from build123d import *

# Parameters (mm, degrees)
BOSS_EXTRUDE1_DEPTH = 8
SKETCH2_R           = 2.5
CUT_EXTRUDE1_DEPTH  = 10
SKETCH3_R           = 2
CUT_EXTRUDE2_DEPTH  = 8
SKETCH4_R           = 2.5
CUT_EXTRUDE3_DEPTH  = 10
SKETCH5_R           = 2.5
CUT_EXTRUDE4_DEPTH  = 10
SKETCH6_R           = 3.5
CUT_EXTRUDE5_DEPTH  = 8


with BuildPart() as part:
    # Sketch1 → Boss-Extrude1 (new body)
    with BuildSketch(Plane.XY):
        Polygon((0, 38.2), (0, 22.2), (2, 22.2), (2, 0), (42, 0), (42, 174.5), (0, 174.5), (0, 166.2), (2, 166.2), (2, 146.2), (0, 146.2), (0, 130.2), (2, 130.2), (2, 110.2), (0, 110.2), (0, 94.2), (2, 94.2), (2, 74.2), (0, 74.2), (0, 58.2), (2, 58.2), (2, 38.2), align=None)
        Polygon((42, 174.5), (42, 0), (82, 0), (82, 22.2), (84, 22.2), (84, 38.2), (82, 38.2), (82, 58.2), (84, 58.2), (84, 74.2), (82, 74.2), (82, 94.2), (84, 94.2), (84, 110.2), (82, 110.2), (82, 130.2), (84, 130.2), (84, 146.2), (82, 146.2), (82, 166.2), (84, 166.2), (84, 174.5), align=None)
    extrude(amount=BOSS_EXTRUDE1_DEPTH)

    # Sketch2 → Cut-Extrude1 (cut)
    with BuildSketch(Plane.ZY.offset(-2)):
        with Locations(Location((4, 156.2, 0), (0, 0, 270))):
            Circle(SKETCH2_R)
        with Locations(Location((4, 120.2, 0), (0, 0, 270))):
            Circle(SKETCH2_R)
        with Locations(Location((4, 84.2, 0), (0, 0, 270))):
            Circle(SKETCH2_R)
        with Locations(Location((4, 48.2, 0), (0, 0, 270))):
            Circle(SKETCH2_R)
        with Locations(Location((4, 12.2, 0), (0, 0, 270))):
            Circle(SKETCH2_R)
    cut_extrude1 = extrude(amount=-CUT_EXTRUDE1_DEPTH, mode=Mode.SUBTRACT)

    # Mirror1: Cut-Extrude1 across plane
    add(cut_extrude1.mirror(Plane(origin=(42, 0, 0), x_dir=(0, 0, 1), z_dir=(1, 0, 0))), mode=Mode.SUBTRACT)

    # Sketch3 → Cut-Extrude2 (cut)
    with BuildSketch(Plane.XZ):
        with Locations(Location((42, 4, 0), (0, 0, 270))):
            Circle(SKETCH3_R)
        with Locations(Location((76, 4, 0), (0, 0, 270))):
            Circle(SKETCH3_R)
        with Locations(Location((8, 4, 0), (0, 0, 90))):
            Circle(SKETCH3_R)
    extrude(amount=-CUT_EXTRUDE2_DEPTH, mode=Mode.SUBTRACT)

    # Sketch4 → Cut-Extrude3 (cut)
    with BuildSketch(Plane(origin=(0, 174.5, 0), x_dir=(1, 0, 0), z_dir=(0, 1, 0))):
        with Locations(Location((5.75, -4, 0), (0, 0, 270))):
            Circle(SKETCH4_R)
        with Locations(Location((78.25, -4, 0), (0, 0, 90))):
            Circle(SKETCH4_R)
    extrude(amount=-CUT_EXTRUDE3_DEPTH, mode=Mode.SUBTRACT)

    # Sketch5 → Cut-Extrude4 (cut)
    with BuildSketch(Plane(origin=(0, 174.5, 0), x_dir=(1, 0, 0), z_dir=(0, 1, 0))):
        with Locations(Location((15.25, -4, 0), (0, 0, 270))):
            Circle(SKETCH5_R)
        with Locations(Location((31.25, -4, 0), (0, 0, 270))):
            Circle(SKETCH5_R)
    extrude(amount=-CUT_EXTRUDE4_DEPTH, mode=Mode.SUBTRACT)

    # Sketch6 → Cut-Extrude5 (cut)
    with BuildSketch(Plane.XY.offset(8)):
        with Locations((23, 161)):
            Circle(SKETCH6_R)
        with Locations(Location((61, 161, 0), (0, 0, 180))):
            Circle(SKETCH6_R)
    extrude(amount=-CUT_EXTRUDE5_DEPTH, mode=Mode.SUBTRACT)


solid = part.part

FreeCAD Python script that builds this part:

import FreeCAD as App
import Part
import Sketcher
from FreeCAD import Vector

doc = App.newDocument("Part")
params = doc.addObject("Spreadsheet::Sheet", "Params")
for row, (alias, value) in enumerate([
    ("sketch1_width", "2 mm"),
    ("sketch1_width2", "80 mm"),
    ("sketch1_height", "16 mm"),
    ("sketch1_height2", "20 mm"),
    ("sketch1_height3", "22.2 mm"),
    ("pad1_length", "8 mm"),
    ("sketch2_diameter", "5 mm"),
    ("pocket1_length", "10 mm"),
    ("sketch3_diameter", "4 mm"),
    ("pocket2_length", "8 mm"),
    ("sketch4_diameter", "5 mm"),
    ("pocket3_length", "10 mm"),
    ("sketch5_diameter", "5 mm"),
    ("pocket4_length", "10 mm"),
    ("sketch6_diameter", "7 mm"),
    ("pocket5_length", "8 mm"),
], start=1):
    params.set(f"A{row}", alias)
    params.set(f"B{row}", "=" + value)
    params.setAlias(f"B{row}", alias)

body = doc.addObject("PartDesign::Body", "Body")

# Sketch on XY plane
sketch1 = doc.addObject("Sketcher::SketchObject", "Sketch")
body.addObject(sketch1)
sketch1.AttachmentSupport = (doc.XY_Plane, [""])
sketch1.MapMode = "FlatFace"
sketch1.addGeometry(Part.LineSegment(Vector(0, 38.2, 0), Vector(0, 22.2, 0)), False)
sketch1.addGeometry(Part.LineSegment(Vector(0, 22.2, 0), Vector(2, 22.2, 0)), False)
sketch1.addGeometry(Part.LineSegment(Vector(2, 22.2, 0), Vector(2, 0, 0)), False)
sketch1.addGeometry(Part.LineSegment(Vector(2, 0, 0), Vector(82, 0, 0)), False)
sketch1.addGeometry(Part.LineSegment(Vector(82, 0, 0), Vector(82, 22.2, 0)), False)
sketch1.addGeometry(Part.LineSegment(Vector(82, 22.2, 0), Vector(84, 22.2, 0)), False)
sketch1.addGeometry(Part.LineSegment(Vector(84, 22.2, 0), Vector(84, 38.2, 0)), False)
sketch1.addGeometry(Part.LineSegment(Vector(84, 38.2, 0), Vector(82, 38.2, 0)), False)
sketch1.addGeometry(Part.LineSegment(Vector(82, 38.2, 0), Vector(82, 58.2, 0)), False)
sketch1.addGeometry(Part.LineSegment(Vector(82, 58.2, 0), Vector(84, 58.2, 0)), False)
sketch1.addGeometry(Part.LineSegment(Vector(84, 58.2, 0), Vector(84, 74.2, 0)), False)
sketch1.addGeometry(Part.LineSegment(Vector(84, 74.2, 0), Vector(82, 74.2, 0)), False)
sketch1.addGeometry(Part.LineSegment(Vector(82, 74.2, 0), Vector(82, 94.2, 0)), False)
sketch1.addGeometry(Part.LineSegment(Vector(82, 94.2, 0), Vector(84, 94.2, 0)), False)
sketch1.addGeometry(Part.LineSegment(Vector(84, 94.2, 0), Vector(84, 110.2, 0)), False)
sketch1.addGeometry(Part.LineSegment(Vector(84, 110.2, 0), Vector(82, 110.2, 0)), False)
sketch1.addGeometry(Part.LineSegment(Vector(82, 110.2, 0), Vector(82, 130.2, 0)), False)
sketch1.addGeometry(Part.LineSegment(Vector(82, 130.2, 0), Vector(84, 130.2, 0)), False)
sketch1.addGeometry(Part.LineSegment(Vector(84, 130.2, 0), Vector(84, 146.2, 0)), False)
sketch1.addGeometry(Part.LineSegment(Vector(84, 146.2, 0), Vector(82, 146.2, 0)), False)
sketch1.addGeometry(Part.LineSegment(Vector(82, 146.2, 0), Vector(82, 166.2, 0)), False)
sketch1.addGeometry(Part.LineSegment(Vector(82, 166.2, 0), Vector(84, 166.2, 0)), False)
sketch1.addGeometry(Part.LineSegment(Vector(84, 166.2, 0), Vector(84, 174.5, 0)), False)
sketch1.addGeometry(Part.LineSegment(Vector(84, 174.5, 0), Vector(0, 174.5, 0)), False)
sketch1.addGeometry(Part.LineSegment(Vector(0, 174.5, 0), Vector(0, 166.2, 0)), False)
sketch1.addGeometry(Part.LineSegment(Vector(0, 166.2, 0), Vector(2, 166.2, 0)), False)
sketch1.addGeometry(Part.LineSegment(Vector(2, 166.2, 0), Vector(2, 146.2, 0)), False)
sketch1.addGeometry(Part.LineSegment(Vector(2, 146.2, 0), Vector(0, 146.2, 0)), False)
sketch1.addGeometry(Part.LineSegment(Vector(0, 146.2, 0), Vector(0, 130.2, 0)), False)
sketch1.addGeometry(Part.LineSegment(Vector(0, 130.2, 0), Vector(2, 130.2, 0)), False)
sketch1.addGeometry(Part.LineSegment(Vector(2, 130.2, 0), Vector(2, 110.2, 0)), False)
sketch1.addGeometry(Part.LineSegment(Vector(2, 110.2, 0), Vector(0, 110.2, 0)), False)
sketch1.addGeometry(Part.LineSegment(Vector(0, 110.2, 0), Vector(0, 94.2, 0)), False)
sketch1.addGeometry(Part.LineSegment(Vector(0, 94.2, 0), Vector(2, 94.2, 0)), False)
sketch1.addGeometry(Part.LineSegment(Vector(2, 94.2, 0), Vector(2, 74.2, 0)), False)
sketch1.addGeometry(Part.LineSegment(Vector(2, 74.2, 0), Vector(0, 74.2, 0)), False)
sketch1.addGeometry(Part.LineSegment(Vector(0, 74.2, 0), Vector(0, 58.2, 0)), False)
sketch1.addGeometry(Part.LineSegment(Vector(0, 58.2, 0), Vector(2, 58.2, 0)), False)
sketch1.addGeometry(Part.LineSegment(Vector(2, 58.2, 0), Vector(2, 38.2, 0)), False)
sketch1.addGeometry(Part.LineSegment(Vector(2, 38.2, 0), Vector(0, 38.2, 0)), False)
sketch1.addConstraint(Sketcher.Constraint("Coincident", 0, 2, 1, 1))
sketch1.addConstraint(Sketcher.Constraint("Coincident", 1, 2, 2, 1))
sketch1.addConstraint(Sketcher.Constraint("Coincident", 2, 2, 3, 1))
sketch1.addConstraint(Sketcher.Constraint("Coincident", 3, 2, 4, 1))
sketch1.addConstraint(Sketcher.Constraint("Coincident", 4, 2, 5, 1))
sketch1.addConstraint(Sketcher.Constraint("Coincident", 5, 2, 6, 1))
sketch1.addConstraint(Sketcher.Constraint("Coincident", 6, 2, 7, 1))
sketch1.addConstraint(Sketcher.Constraint("Coincident", 7, 2, 8, 1))
sketch1.addConstraint(Sketcher.Constraint("Coincident", 8, 2, 9, 1))
sketch1.addConstraint(Sketcher.Constraint("Coincident", 9, 2, 10, 1))
sketch1.addConstraint(Sketcher.Constraint("Coincident", 10, 2, 11, 1))
sketch1.addConstraint(Sketcher.Constraint("Coincident", 11, 2, 12, 1))
sketch1.addConstraint(Sketcher.Constraint("Coincident", 12, 2, 13, 1))
sketch1.addConstraint(Sketcher.Constraint("Coincident", 13, 2, 14, 1))
sketch1.addConstraint(Sketcher.Constraint("Coincident", 14, 2, 15, 1))
sketch1.addConstraint(Sketcher.Constraint("Coincident", 15, 2, 16, 1))
sketch1.addConstraint(Sketcher.Constraint("Coincident", 16, 2, 17, 1))
sketch1.addConstraint(Sketcher.Constraint("Coincident", 17, 2, 18, 1))
sketch1.addConstraint(Sketcher.Constraint("Coincident", 18, 2, 19, 1))
sketch1.addConstraint(Sketcher.Constraint("Coincident", 19, 2, 20, 1))
sketch1.addConstraint(Sketcher.Constraint("Coincident", 20, 2, 21, 1))
sketch1.addConstraint(Sketcher.Constraint("Coincident", 21, 2, 22, 1))
sketch1.addConstraint(Sketcher.Constraint("Coincident", 22, 2, 23, 1))
sketch1.addConstraint(Sketcher.Constraint("Coincident", 23, 2, 24, 1))
sketch1.addConstraint(Sketcher.Constraint("Coincident", 24, 2, 25, 1))
sketch1.addConstraint(Sketcher.Constraint("Coincident", 25, 2, 26, 1))
sketch1.addConstraint(Sketcher.Constraint("Coincident", 26, 2, 27, 1))
sketch1.addConstraint(Sketcher.Constraint("Coincident", 27, 2, 28, 1))
sketch1.addConstraint(Sketcher.Constraint("Coincident", 28, 2, 29, 1))
sketch1.addConstraint(Sketcher.Constraint("Coincident", 29, 2, 30, 1))
sketch1.addConstraint(Sketcher.Constraint("Coincident", 30, 2, 31, 1))
sketch1.addConstraint(Sketcher.Constraint("Coincident", 31, 2, 32, 1))
sketch1.addConstraint(Sketcher.Constraint("Coincident", 32, 2, 33, 1))
sketch1.addConstraint(Sketcher.Constraint("Coincident", 33, 2, 34, 1))
sketch1.addConstraint(Sketcher.Constraint("Coincident", 34, 2, 35, 1))
sketch1.addConstraint(Sketcher.Constraint("Coincident", 35, 2, 36, 1))
sketch1.addConstraint(Sketcher.Constraint("Coincident", 36, 2, 37, 1))
sketch1.addConstraint(Sketcher.Constraint("Coincident", 37, 2, 38, 1))
sketch1.addConstraint(Sketcher.Constraint("Coincident", 38, 2, 39, 1))
sketch1.addConstraint(Sketcher.Constraint("Coincident", 39, 2, 0, 1))
sketch1.addConstraint(Sketcher.Constraint("Vertical", 0))
sketch1.addConstraint(Sketcher.Constraint("Horizontal", 1))
sketch1.addConstraint(Sketcher.Constraint("Vertical", 2))
sketch1.addConstraint(Sketcher.Constraint("Horizontal", 3))
sketch1.addConstraint(Sketcher.Constraint("Vertical", 4))
sketch1.addConstraint(Sketcher.Constraint("Horizontal", 5))
sketch1.addConstraint(Sketcher.Constraint("Vertical", 6))
sketch1.addConstraint(Sketcher.Constraint("Horizontal", 7))
sketch1.addConstraint(Sketcher.Constraint("Vertical", 8))
sketch1.addConstraint(Sketcher.Constraint("Horizontal", 9))
sketch1.addConstraint(Sketcher.Constraint("Vertical", 10))
sketch1.addConstraint(Sketcher.Constraint("Horizontal", 11))
sketch1.addConstraint(Sketcher.Constraint("Vertical", 12))
sketch1.addConstraint(Sketcher.Constraint("Horizontal", 13))
sketch1.addConstraint(Sketcher.Constraint("Vertical", 14))
sketch1.addConstraint(Sketcher.Constraint("Horizontal", 15))
sketch1.addConstraint(Sketcher.Constraint("Vertical", 16))
sketch1.addConstraint(Sketcher.Constraint("Horizontal", 17))
sketch1.addConstraint(Sketcher.Constraint("Vertical", 18))
sketch1.addConstraint(Sketcher.Constraint("Horizontal", 19))
sketch1.addConstraint(Sketcher.Constraint("Vertical", 20))
sketch1.addConstraint(Sketcher.Constraint("Horizontal", 21))
sketch1.addConstraint(Sketcher.Constraint("Vertical", 22))
sketch1.addConstraint(Sketcher.Constraint("Horizontal", 23))
sketch1.addConstraint(Sketcher.Constraint("Vertical", 24))
sketch1.addConstraint(Sketcher.Constraint("Horizontal", 25))
sketch1.addConstraint(Sketcher.Constraint("Vertical", 26))
sketch1.addConstraint(Sketcher.Constraint("Horizontal", 27))
sketch1.addConstraint(Sketcher.Constraint("Vertical", 28))
sketch1.addConstraint(Sketcher.Constraint("Horizontal", 29))
sketch1.addConstraint(Sketcher.Constraint("Vertical", 30))
sketch1.addConstraint(Sketcher.Constraint("Horizontal", 31))
sketch1.addConstraint(Sketcher.Constraint("Vertical", 32))
sketch1.addConstraint(Sketcher.Constraint("Horizontal", 33))
sketch1.addConstraint(Sketcher.Constraint("Vertical", 34))
sketch1.addConstraint(Sketcher.Constraint("Horizontal", 35))
sketch1.addConstraint(Sketcher.Constraint("Vertical", 36))
sketch1.addConstraint(Sketcher.Constraint("Horizontal", 37))
sketch1.addConstraint(Sketcher.Constraint("Vertical", 38))
sketch1.addConstraint(Sketcher.Constraint("Horizontal", 39))
sketch1.addConstraint(Sketcher.Constraint("PointOnObject", 0, 2, -2))
sketch1.addConstraint(Sketcher.Constraint("PointOnObject", 2, 2, -1))
sketch1.addConstraint(Sketcher.Constraint("PointOnObject", 23, 2, -2))
sketch1.addConstraint(Sketcher.Constraint("PointOnObject", 27, 2, -2))
sketch1.addConstraint(Sketcher.Constraint("PointOnObject", 31, 2, -2))
sketch1.addConstraint(Sketcher.Constraint("PointOnObject", 35, 2, -2))
sketch1.addConstraint(Sketcher.Constraint("Horizontal", 1, 2, 4, 2))
sketch1.addConstraint(Sketcher.Constraint("Horizontal", 21, 2, 24, 2))
sketch1.addConstraint(Sketcher.Constraint("Horizontal", 19, 2, 26, 2))
sketch1.addConstraint(Sketcher.Constraint("Horizontal", 17, 2, 28, 2))
sketch1.addConstraint(Sketcher.Constraint("Horizontal", 15, 2, 30, 2))
sketch1.addConstraint(Sketcher.Constraint("Horizontal", 13, 2, 32, 2))
sketch1.addConstraint(Sketcher.Constraint("Horizontal", 11, 2, 34, 2))
sketch1.addConstraint(Sketcher.Constraint("Horizontal", 9, 2, 36, 2))
sketch1.addConstraint(Sketcher.Constraint("Horizontal", 7, 2, 38, 2))
sketch1.addConstraint(Sketcher.Constraint("Vertical", 4, 2, 7, 2))
sketch1.addConstraint(Sketcher.Constraint("Vertical", 6, 2, 9, 2))
sketch1.addConstraint(Sketcher.Constraint("Vertical", 8, 2, 11, 2))
sketch1.addConstraint(Sketcher.Constraint("Vertical", 10, 2, 13, 2))
sketch1.addConstraint(Sketcher.Constraint("Vertical", 12, 2, 15, 2))
sketch1.addConstraint(Sketcher.Constraint("Vertical", 14, 2, 17, 2))
sketch1.addConstraint(Sketcher.Constraint("Vertical", 16, 2, 19, 2))
sketch1.addConstraint(Sketcher.Constraint("Vertical", 18, 2, 21, 2))
sketch1.addConstraint(Sketcher.Constraint("Vertical", 2, 2, 25, 2))
sketch1.addConstraint(Sketcher.Constraint("Vertical", 26, 2, 29, 2))
sketch1.addConstraint(Sketcher.Constraint("Vertical", 30, 2, 33, 2))
sketch1.addConstraint(Sketcher.Constraint("Vertical", 34, 2, 37, 2))
sketch1.addConstraint(Sketcher.Constraint("Equal", 1, 5))
sketch1.addConstraint(Sketcher.Constraint("Equal", 6, 10))
sketch1.addConstraint(Sketcher.Constraint("Equal", 8, 12))
sketch1.addConstraint(Sketcher.Constraint("Equal", 10, 14))
sketch1.addConstraint(Sketcher.Constraint("Equal", 12, 16))
sketch1.addConstraint(Sketcher.Constraint("Equal", 14, 18))
sketch1.addConstraint(Sketcher.Constraint("Equal", 16, 20))
sketch1.addConstraint(Sketcher.Constraint("DistanceX", 1, 1, 1, 2, 2.0))
sketch1.addConstraint(Sketcher.Constraint("DistanceX", 3, 1, 3, 2, 80.0))
sketch1.addConstraint(Sketcher.Constraint("DistanceY", 0, 2, 0, 1, 16.0))
sketch1.addConstraint(Sketcher.Constraint("DistanceY", 8, 1, 8, 2, 20.0))
sketch1.addConstraint(Sketcher.Constraint("DistanceY", 2, 2, 2, 1, 22.2))
sketch1.addConstraint(Sketcher.Constraint("DistanceY", 22, 1, 22, 2, 8.3))
sketch1.setExpression("Constraints[114]", "Params.sketch1_width")
sketch1.setExpression("Constraints[115]", "Params.sketch1_width2")
sketch1.setExpression("Constraints[116]", "Params.sketch1_height")
sketch1.setExpression("Constraints[117]", "Params.sketch1_height2")
sketch1.setExpression("Constraints[118]", "Params.sketch1_height3")
pad1 = doc.addObject("PartDesign::Pad", "Pad")
body.addObject(pad1)
pad1.Profile = sketch1
pad1.setExpression("Length", "Params.pad1_length")

# Sketch on YZ plane
sketch2 = doc.addObject("Sketcher::SketchObject", "Sketch001")
body.addObject(sketch2)
sketch2.AttachmentSupport = (doc.YZ_Plane, [""])
sketch2.MapMode = "FlatFace"
sketch2.AttachmentOffset = App.Placement(Vector(0, 0, 2), App.Rotation())
sketch2.addGeometry(Part.Circle(Vector(156.2, 4, 0), Vector(0, 0, 1), 2.5), False)
sketch2.addGeometry(Part.Circle(Vector(120.2, 4, 0), Vector(0, 0, 1), 2.5), False)
sketch2.addGeometry(Part.Circle(Vector(84.2, 4, 0), Vector(0, 0, 1), 2.5), False)
sketch2.addGeometry(Part.Circle(Vector(48.2, 4, 0), Vector(0, 0, 1), 2.5), False)
sketch2.addGeometry(Part.Circle(Vector(12.2, 4, 0), Vector(0, 0, 1), 2.5), False)
sketch2.addConstraint(Sketcher.Constraint("Equal", 0, 1))
sketch2.addConstraint(Sketcher.Constraint("Equal", 1, 2))
sketch2.addConstraint(Sketcher.Constraint("Equal", 2, 3))
sketch2.addConstraint(Sketcher.Constraint("Equal", 3, 4))
sketch2.addConstraint(Sketcher.Constraint("Horizontal", 0, 3, 1, 3))
sketch2.addConstraint(Sketcher.Constraint("Horizontal", 1, 3, 2, 3))
sketch2.addConstraint(Sketcher.Constraint("Horizontal", 2, 3, 3, 3))
sketch2.addConstraint(Sketcher.Constraint("Horizontal", 3, 3, 4, 3))
sketch2.addConstraint(Sketcher.Constraint("Diameter", 0, 5.0))
sketch2.addConstraint(Sketcher.Constraint("DistanceY", -1, 1, 0, 3, 4.0))
sketch2.addConstraint(Sketcher.Constraint("DistanceX", 1, 3, 0, 3, 36.0))
sketch2.addConstraint(Sketcher.Constraint("DistanceX", 2, 3, 1, 3, 36.0))
sketch2.addConstraint(Sketcher.Constraint("DistanceX", 3, 3, 2, 3, 36.0))
sketch2.addConstraint(Sketcher.Constraint("DistanceX", 4, 3, 3, 3, 36.0))
sketch2.addConstraint(Sketcher.Constraint("DistanceX", -1, 1, 0, 3, 156.2))
sketch2.setExpression("Constraints[8]", "Params.sketch2_diameter")
pocket1 = doc.addObject("PartDesign::Pocket", "Pocket")
body.addObject(pocket1)
pocket1.Profile = sketch2
pocket1.setExpression("Length", "Params.pocket1_length")
pocket1.Reversed = True
doc.recompute()

datumplane = doc.addObject("PartDesign::Plane", "DatumPlane")
body.addObject(datumplane)
datumplane.AttachmentSupport = (doc.YZ_Plane, [""])
datumplane.MapMode = "FlatFace"
datumplane.AttachmentOffset = App.Placement(Vector(0, 0, 42), App.Rotation())
mirrored = doc.addObject("PartDesign::Mirrored", "Mirrored")
body.addObject(mirrored)
mirrored.Originals = [pocket1]
mirrored.MirrorPlane = (datumplane, [""])
body.Tip = mirrored

# Sketch on XZ plane
sketch3 = doc.addObject("Sketcher::SketchObject", "Sketch002")
body.addObject(sketch3)
sketch3.AttachmentSupport = (doc.XZ_Plane, [""])
sketch3.MapMode = "FlatFace"
sketch3.addGeometry(Part.Circle(Vector(42, 4, 0), Vector(0, 0, 1), 2), False)
sketch3.addGeometry(Part.Circle(Vector(76, 4, 0), Vector(0, 0, 1), 2), False)
sketch3.addGeometry(Part.Circle(Vector(8, 4, 0), Vector(0, 0, 1), 2), False)
sketch3.addConstraint(Sketcher.Constraint("Equal", 0, 1))
sketch3.addConstraint(Sketcher.Constraint("Equal", 1, 2))
sketch3.addConstraint(Sketcher.Constraint("Horizontal", 0, 3, 1, 3))
sketch3.addConstraint(Sketcher.Constraint("Horizontal", 1, 3, 2, 3))
sketch3.addConstraint(Sketcher.Constraint("Diameter", 0, 4.0))
sketch3.addConstraint(Sketcher.Constraint("DistanceX", -1, 1, 0, 3, 42.0))
sketch3.addConstraint(Sketcher.Constraint("DistanceY", -1, 1, 0, 3, 4.0))
sketch3.addConstraint(Sketcher.Constraint("DistanceX", -1, 1, 1, 3, 76.0))
sketch3.addConstraint(Sketcher.Constraint("DistanceX", -1, 1, 2, 3, 8.0))
sketch3.setExpression("Constraints[4]", "Params.sketch3_diameter")
pocket2 = doc.addObject("PartDesign::Pocket", "Pocket001")
body.addObject(pocket2)
pocket2.Profile = sketch3
pocket2.setExpression("Length", "Params.pocket2_length")

# Sketch on XZ plane
sketch4 = doc.addObject("Sketcher::SketchObject", "Sketch003")
body.addObject(sketch4)
sketch4.AttachmentSupport = (doc.XZ_Plane, [""])
sketch4.MapMode = "FlatFace"
sketch4.AttachmentOffset = App.Placement(Vector(0, 0, -174.5), App.Rotation())
sketch4.addGeometry(Part.Circle(Vector(5.75, 4, 0), Vector(0, 0, 1), 2.5), False)
sketch4.addGeometry(Part.Circle(Vector(78.25, 4, 0), Vector(0, 0, 1), 2.5), False)
sketch4.addConstraint(Sketcher.Constraint("Equal", 0, 1))
sketch4.addConstraint(Sketcher.Constraint("Horizontal", 0, 3, 1, 3))
sketch4.addConstraint(Sketcher.Constraint("Diameter", 0, 5.0))
sketch4.addConstraint(Sketcher.Constraint("DistanceY", -1, 1, 0, 3, 4.0))
sketch4.addConstraint(Sketcher.Constraint("DistanceX", 0, 3, 1, 3, 72.5))
sketch4.addConstraint(Sketcher.Constraint("DistanceX", -1, 1, 0, 3, 5.75))
sketch4.setExpression("Constraints[2]", "Params.sketch4_diameter")
pocket3 = doc.addObject("PartDesign::Pocket", "Pocket002")
body.addObject(pocket3)
pocket3.Profile = sketch4
pocket3.setExpression("Length", "Params.pocket3_length")
pocket3.Reversed = True

# Sketch on XZ plane
sketch5 = doc.addObject("Sketcher::SketchObject", "Sketch004")
body.addObject(sketch5)
sketch5.AttachmentSupport = (doc.XZ_Plane, [""])
sketch5.MapMode = "FlatFace"
sketch5.AttachmentOffset = App.Placement(Vector(0, 0, -174.5), App.Rotation())
sketch5.addGeometry(Part.Circle(Vector(15.25, 4, 0), Vector(0, 0, 1), 2.5), False)
sketch5.addGeometry(Part.Circle(Vector(31.25, 4, 0), Vector(0, 0, 1), 2.5), False)
sketch5.addConstraint(Sketcher.Constraint("Equal", 0, 1))
sketch5.addConstraint(Sketcher.Constraint("Horizontal", 0, 3, 1, 3))
sketch5.addConstraint(Sketcher.Constraint("Diameter", 0, 5.0))
sketch5.addConstraint(Sketcher.Constraint("DistanceY", -1, 1, 0, 3, 4.0))
sketch5.addConstraint(Sketcher.Constraint("DistanceX", 0, 3, 1, 3, 16.0))
sketch5.addConstraint(Sketcher.Constraint("DistanceX", -1, 1, 0, 3, 15.25))
sketch5.setExpression("Constraints[2]", "Params.sketch5_diameter")
pocket4 = doc.addObject("PartDesign::Pocket", "Pocket003")
body.addObject(pocket4)
pocket4.Profile = sketch5
pocket4.setExpression("Length", "Params.pocket4_length")
pocket4.Reversed = True

# Sketch on XY plane
sketch6 = doc.addObject("Sketcher::SketchObject", "Sketch005")
body.addObject(sketch6)
sketch6.AttachmentSupport = (doc.XY_Plane, [""])
sketch6.MapMode = "FlatFace"
sketch6.AttachmentOffset = App.Placement(Vector(0, 0, 8), App.Rotation())
sketch6.addGeometry(Part.Circle(Vector(23, 161, 0), Vector(0, 0, 1), 3.5), False)
sketch6.addGeometry(Part.Circle(Vector(61, 161, 0), Vector(0, 0, 1), 3.5), False)
sketch6.addConstraint(Sketcher.Constraint("Equal", 0, 1))
sketch6.addConstraint(Sketcher.Constraint("Horizontal", 0, 3, 1, 3))
sketch6.addConstraint(Sketcher.Constraint("Diameter", 0, 7.0))
sketch6.addConstraint(Sketcher.Constraint("DistanceX", -1, 1, 0, 3, 23.0))
sketch6.addConstraint(Sketcher.Constraint("DistanceY", -1, 1, 0, 3, 161.0))
sketch6.addConstraint(Sketcher.Constraint("DistanceX", -1, 1, 1, 3, 61.0))
sketch6.setExpression("Constraints[2]", "Params.sketch6_diameter")
pocket5 = doc.addObject("PartDesign::Pocket", "Pocket004")
body.addObject(pocket5)
pocket5.Profile = sketch6
pocket5.setExpression("Length", "Params.pocket5_length")

doc.recompute()
